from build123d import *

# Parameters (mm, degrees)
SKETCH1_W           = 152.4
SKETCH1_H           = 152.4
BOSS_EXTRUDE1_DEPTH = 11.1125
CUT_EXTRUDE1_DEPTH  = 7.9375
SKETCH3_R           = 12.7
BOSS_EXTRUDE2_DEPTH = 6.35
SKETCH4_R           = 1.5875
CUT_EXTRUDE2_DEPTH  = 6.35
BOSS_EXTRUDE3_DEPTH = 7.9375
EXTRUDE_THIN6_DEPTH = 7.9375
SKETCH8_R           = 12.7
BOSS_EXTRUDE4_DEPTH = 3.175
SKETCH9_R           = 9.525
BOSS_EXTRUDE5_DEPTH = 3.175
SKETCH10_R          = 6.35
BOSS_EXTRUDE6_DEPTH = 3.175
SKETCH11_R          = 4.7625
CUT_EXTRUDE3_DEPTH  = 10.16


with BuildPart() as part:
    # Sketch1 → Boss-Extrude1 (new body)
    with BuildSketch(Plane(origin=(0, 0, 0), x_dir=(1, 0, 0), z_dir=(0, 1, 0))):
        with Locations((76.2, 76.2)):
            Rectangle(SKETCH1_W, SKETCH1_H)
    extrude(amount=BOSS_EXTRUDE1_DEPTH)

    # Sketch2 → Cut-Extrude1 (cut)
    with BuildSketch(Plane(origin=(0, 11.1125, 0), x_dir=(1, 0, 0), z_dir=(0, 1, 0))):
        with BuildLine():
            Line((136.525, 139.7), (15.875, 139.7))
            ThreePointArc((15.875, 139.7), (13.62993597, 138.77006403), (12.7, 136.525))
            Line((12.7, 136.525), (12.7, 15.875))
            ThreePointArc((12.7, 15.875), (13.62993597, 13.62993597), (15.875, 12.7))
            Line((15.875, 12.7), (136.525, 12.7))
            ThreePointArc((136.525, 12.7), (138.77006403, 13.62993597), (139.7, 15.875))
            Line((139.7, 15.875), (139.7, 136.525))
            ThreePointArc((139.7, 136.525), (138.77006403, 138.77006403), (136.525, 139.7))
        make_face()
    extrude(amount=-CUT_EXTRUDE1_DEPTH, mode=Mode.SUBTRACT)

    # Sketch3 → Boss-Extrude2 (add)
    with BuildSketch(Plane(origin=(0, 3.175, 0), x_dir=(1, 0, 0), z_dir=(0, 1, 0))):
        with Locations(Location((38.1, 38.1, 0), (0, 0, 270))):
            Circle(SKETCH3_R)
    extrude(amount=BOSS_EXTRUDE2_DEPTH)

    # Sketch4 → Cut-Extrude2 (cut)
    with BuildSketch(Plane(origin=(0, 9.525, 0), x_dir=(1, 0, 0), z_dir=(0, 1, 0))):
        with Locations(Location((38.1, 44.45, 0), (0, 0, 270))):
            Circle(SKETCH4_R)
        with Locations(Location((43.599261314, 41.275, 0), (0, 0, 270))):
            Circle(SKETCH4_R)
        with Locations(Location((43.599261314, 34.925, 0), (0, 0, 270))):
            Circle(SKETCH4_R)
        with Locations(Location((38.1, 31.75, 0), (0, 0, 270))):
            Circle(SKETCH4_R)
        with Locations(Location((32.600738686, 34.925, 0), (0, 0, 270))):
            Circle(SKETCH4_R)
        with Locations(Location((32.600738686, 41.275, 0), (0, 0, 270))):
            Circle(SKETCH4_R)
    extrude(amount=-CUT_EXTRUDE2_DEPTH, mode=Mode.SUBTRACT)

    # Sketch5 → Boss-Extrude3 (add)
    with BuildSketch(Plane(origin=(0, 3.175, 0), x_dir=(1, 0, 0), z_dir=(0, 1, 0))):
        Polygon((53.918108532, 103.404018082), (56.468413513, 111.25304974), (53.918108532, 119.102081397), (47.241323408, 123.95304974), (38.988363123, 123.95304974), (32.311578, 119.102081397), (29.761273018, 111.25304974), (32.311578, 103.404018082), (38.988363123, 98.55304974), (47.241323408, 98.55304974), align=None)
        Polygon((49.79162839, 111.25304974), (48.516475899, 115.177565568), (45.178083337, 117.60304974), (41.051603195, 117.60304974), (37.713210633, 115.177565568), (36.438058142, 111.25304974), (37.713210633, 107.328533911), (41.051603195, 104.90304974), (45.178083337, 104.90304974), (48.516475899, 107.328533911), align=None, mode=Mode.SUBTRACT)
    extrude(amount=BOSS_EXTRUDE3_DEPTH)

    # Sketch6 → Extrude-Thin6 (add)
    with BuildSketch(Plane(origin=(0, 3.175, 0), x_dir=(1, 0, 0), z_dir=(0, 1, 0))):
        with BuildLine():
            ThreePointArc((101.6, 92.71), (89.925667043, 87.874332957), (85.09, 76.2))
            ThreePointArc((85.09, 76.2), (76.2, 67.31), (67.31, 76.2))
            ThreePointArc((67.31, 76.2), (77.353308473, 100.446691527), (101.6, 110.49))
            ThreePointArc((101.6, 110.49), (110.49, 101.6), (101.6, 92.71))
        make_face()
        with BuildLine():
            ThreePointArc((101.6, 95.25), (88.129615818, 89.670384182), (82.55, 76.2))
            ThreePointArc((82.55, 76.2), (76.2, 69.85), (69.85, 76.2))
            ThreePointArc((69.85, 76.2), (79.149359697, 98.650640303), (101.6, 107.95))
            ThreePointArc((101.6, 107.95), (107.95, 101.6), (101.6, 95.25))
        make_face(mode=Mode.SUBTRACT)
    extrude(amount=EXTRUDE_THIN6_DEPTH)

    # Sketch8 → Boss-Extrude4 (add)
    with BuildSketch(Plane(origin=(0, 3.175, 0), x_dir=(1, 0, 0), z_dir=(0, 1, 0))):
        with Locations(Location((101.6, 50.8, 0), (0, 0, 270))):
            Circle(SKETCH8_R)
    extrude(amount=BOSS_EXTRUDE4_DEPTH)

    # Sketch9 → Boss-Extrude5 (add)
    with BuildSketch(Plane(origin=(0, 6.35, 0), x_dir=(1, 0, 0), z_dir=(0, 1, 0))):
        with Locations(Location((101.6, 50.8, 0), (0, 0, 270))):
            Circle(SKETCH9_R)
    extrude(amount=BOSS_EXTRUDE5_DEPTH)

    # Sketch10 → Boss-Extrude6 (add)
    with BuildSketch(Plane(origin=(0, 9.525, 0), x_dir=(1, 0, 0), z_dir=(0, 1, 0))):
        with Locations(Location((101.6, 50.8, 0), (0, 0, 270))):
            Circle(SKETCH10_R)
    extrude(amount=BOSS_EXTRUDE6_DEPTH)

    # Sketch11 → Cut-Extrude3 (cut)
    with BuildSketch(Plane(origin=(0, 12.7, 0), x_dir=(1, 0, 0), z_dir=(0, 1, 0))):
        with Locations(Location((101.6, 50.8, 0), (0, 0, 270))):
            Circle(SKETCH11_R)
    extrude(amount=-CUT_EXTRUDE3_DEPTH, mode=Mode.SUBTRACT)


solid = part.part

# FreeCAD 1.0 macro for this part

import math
import FreeCAD as App
import Part
import Sketcher
Q = App.Units.Quantity


def add_polygon(sketch, points):
    """Adds a closed chain of lines whose ends are joined by coincident constraints."""
    first, n = sketch.GeometryCount, len(points)
    for a, b in zip(points, points[1:] + points[:1]):
        sketch.addGeometry(Part.LineSegment(App.Vector(*a, 0), App.Vector(*b, 0)), False)
    for i in range(n):
        sketch.addConstraint(Sketcher.Constraint("Coincident", first + i, 2, first + (i + 1) % n, 1))

doc = App.newDocument("Part")
body = doc.addObject("PartDesign::Body", "Body")

# Sketch on XZ plane
sketch1 = body.newObject("Sketcher::SketchObject", "Sketch")
sketch1.AttachmentSupport = (doc.getObject("XZ_Plane"), [""])
sketch1.MapMode = "FlatFace"
add_polygon(sketch1, [(0, -152), (0, 0), (152, 0), (152, -152)])  # lines 0-3
sketch1.addConstraint([
    Sketcher.Constraint("Vertical", 0),
    Sketcher.Constraint("Horizontal", 1),
    Sketcher.Constraint("Vertical", 2),
    Sketcher.Constraint("Horizontal", 3),
    Sketcher.Constraint("Coincident", 0, 2, -1, 1),
    Sketcher.Constraint("Equal", 3, 0),
    Sketcher.Constraint("DistanceX", 1, 1, 1, 2, Q("6 in")),
])
pad1 = body.newObject("PartDesign::Pad", "Pad")
pad1.Profile = sketch1
pad1.Length = Q("0.4375 in")
pad1.Reversed = True

# Sketch on XZ plane
sketch2 = body.newObject("Sketcher::SketchObject", "Sketch001")
sketch2.AttachmentSupport = (doc.getObject("XZ_Plane"), [""])
sketch2.MapMode = "FlatFace"
sketch2.AttachmentOffset = App.Placement(App.Vector(0, 0, -0.4375 * 25.4), App.Rotation())
sketch2.addGeometry([
    Part.LineSegment(App.Vector(136.5, -139.7, 0), App.Vector(15.9, -139.7, 0)),  # 0
    Part.ArcOfCircle(Part.Circle(App.Vector(15.9, -136.5, 0), App.Vector(0, 0, 1), 3.2), math.radians(-180), math.radians(-90)),  # 1
    Part.LineSegment(App.Vector(12.7, -136.5, 0), App.Vector(12.7, -15.9, 0)),  # 2
    Part.ArcOfCircle(Part.Circle(App.Vector(15.9, -15.9, 0), App.Vector(0, 0, 1), 3.2), math.radians(90), math.radians(180)),  # 3
    Part.LineSegment(App.Vector(15.9, -12.7, 0), App.Vector(136.5, -12.7, 0)),  # 4
    Part.ArcOfCircle(Part.Circle(App.Vector(136.5, -15.9, 0), App.Vector(0, 0, 1), 3.2), math.radians(0), math.radians(90)),  # 5
    Part.LineSegment(App.Vector(139.7, -15.9, 0), App.Vector(139.7, -136.5, 0)),  # 6
    Part.ArcOfCircle(Part.Circle(App.Vector(136.5, -136.5, 0), App.Vector(0, 0, 1), 3.2), math.radians(-90), math.radians(0)),  # 7
], False)
sketch2.addConstraint([
    Sketcher.Constraint("Tangent", 0, 2, 1, 2),
    Sketcher.Constraint("Tangent", 1, 1, 2, 1),
    Sketcher.Constraint("Tangent", 2, 2, 3, 2),
    Sketcher.Constraint("Tangent", 3, 1, 4, 1),
    Sketcher.Constraint("Tangent", 4, 2, 5, 2),
    Sketcher.Constraint("Tangent", 5, 1, 6, 1),
    Sketcher.Constraint("Tangent", 6, 2, 7, 2),
    Sketcher.Constraint("Tangent", 7, 1, 0, 1),
    Sketcher.Constraint("Horizontal", 0),
    Sketcher.Constraint("Vertical", 2),
    Sketcher.Constraint("Horizontal", 4),
    Sketcher.Constraint("Vertical", 6),
    Sketcher.Constraint("Equal", 1, 3),
    Sketcher.Constraint("Equal", 3, 5),
    Sketcher.Constraint("Equal", 5, 7),
    Sketcher.Constraint("Equal", 4, 2),
    Sketcher.Constraint("Radius", 1, Q("0.125 in")),
    Sketcher.Constraint("DistanceX", 0, 2, 0, 1, Q("4.75 in")),
    Sketcher.Constraint("DistanceY", 0, 2, -1, 1, Q("5.5 in")),
    Sketcher.Constraint("DistanceX", -1, 1, 1, 1, Q("0.5 in")),
])
pocket1 = body.newObject("PartDesign::Pocket", "Pocket")
pocket1.Profile = sketch2
pocket1.Length = Q("0.3125 in")
pocket1.Reversed = True

# Sketch on XZ plane
sketch3 = body.newObject("Sketcher::SketchObject", "Sketch002")
sketch3.AttachmentSupport = (doc.getObject("XZ_Plane"), [""])
sketch3.MapMode = "FlatFace"
sketch3.AttachmentOffset = App.Placement(App.Vector(0, 0, -0.125 * 25.4), App.Rotation())
sketch3.addGeometry(Part.Circle(App.Vector(38, -38, 0), App.Vector(0, 0, 1), 13), False)
sketch3.addConstraint([
    Sketcher.Constraint("Diameter", 0, Q("1 in")),
    Sketcher.Constraint("DistanceX", -1, 1, 0, 3, Q("1.5 in")),
    Sketcher.Constraint("DistanceY", 0, 3, -1, 1, Q("1.5 in")),
])
pad2 = body.newObject("PartDesign::Pad", "Pad001")
pad2.Profile = sketch3
pad2.Length = Q("0.25 in")
pad2.Reversed = True

# Sketch on XZ plane
sketch4 = body.newObject("Sketcher::SketchObject", "Sketch003")
sketch4.AttachmentSupport = (doc.getObject("XZ_Plane"), [""])
sketch4.MapMode = "FlatFace"
sketch4.AttachmentOffset = App.Placement(App.Vector(0, 0, -0.375 * 25.4), App.Rotation())
sketch4.addGeometry([
    Part.Circle(App.Vector(38.1, -44.5, 0), App.Vector(0, 0, 1), 1.6),  # 0
    Part.Circle(App.Vector(43.6, -41.3, 0), App.Vector(0, 0, 1), 1.6),  # 1
    Part.Circle(App.Vector(43.6, -34.9, 0), App.Vector(0, 0, 1), 1.6),  # 2
    Part.Circle(App.Vector(38.1, -31.8, 0), App.Vector(0, 0, 1), 1.6),  # 3
    Part.Circle(App.Vector(32.6, -34.9, 0), App.Vector(0, 0, 1), 1.6),  # 4
    Part.Circle(App.Vector(32.6, -41.3, 0), App.Vector(0, 0, 1), 1.6),  # 5
], False)
sketch4.addConstraint([
    Sketcher.Constraint("Equal", 0, 1),
    Sketcher.Constraint("Equal", 1, 2),
    Sketcher.Constraint("Equal", 2, 3),
    Sketcher.Constraint("Equal", 3, 4),
    Sketcher.Constraint("Equal", 4, 5),
    Sketcher.Constraint("Horizontal", 2, 3, 4, 3),
    Sketcher.Constraint("Horizontal", 1, 3, 5, 3),
    Sketcher.Constraint("Vertical", 1, 3, 2, 3),
    Sketcher.Constraint("Vertical", 0, 3, 3, 3),
    Sketcher.Constraint("Vertical", 4, 3, 5, 3),
    Sketcher.Constraint("Diameter", 0, Q("0.125 in")),
    Sketcher.Constraint("DistanceX", -1, 1, 0, 3, Q("1.5 in")),
    Sketcher.Constraint("DistanceY", 0, 3, 3, 3, Q("0.5 in")),
    Sketcher.Constraint("DistanceY", 0, 3, -1, 1, Q("1.75 in")),
    Sketcher.Constraint("DistanceY", 1, 3, 2, 3, Q("0.25 in")),
    Sketcher.Constraint("DistanceY", 1, 3, -1, 1, Q("1.625 in")),
    Sketcher.Constraint("DistanceX", -1, 1, 1, 3, Q("43.599261 mm")),
    Sketcher.Constraint("DistanceX", -1, 1, 4, 3, Q("32.600739 mm")),
])
pocket2 = body.newObject("PartDesign::Pocket", "Pocket001")
pocket2.Profile = sketch4
pocket2.Length = Q("0.25 in")
pocket2.Reversed = True

# Sketch on XZ plane
sketch5 = body.newObject("Sketcher::SketchObject", "Sketch004")
sketch5.AttachmentSupport = (doc.getObject("XZ_Plane"), [""])
sketch5.MapMode = "FlatFace"
sketch5.AttachmentOffset = App.Placement(App.Vector(0, 0, -0.125 * 25.4), App.Rotation())
add_polygon(sketch5, [(53.9, -103.4), (56.5, -111.3), (53.9, -119.1), (47.2, -124), (39, -124), (32.3, -119.1), (29.8, -111.3), (32.3, -103.4), (39, -98.6), (47.2, -98.6)])  # lines 0-9
add_polygon(sketch5, [(48.5, -115.2), (49.8, -111.3), (48.5, -107.3), (45.2, -104.9), (41.1, -104.9), (37.7, -107.3), (36.4, -111.3), (37.7, -115.2), (41.1, -117.6), (45.2, -117.6)])  # lines 10-19
sketch5.addConstraint([
    Sketcher.Constraint("Horizontal", 3),
    Sketcher.Constraint("Horizontal", 8),
    Sketcher.Constraint("Horizontal", 13),
    Sketcher.Constraint("Horizontal", 18),
    Sketcher.Constraint("Parallel", 0, 5),
    Sketcher.Constraint("Parallel", 1, 6),
    Sketcher.Constraint("Parallel", 2, 7),
    Sketcher.Constraint("Parallel", 4, 9),
    Sketcher.Constraint("Parallel", 6, 10),
    Sketcher.Constraint("Parallel", 5, 11),
    Sketcher.Constraint("Parallel", 9, 12),
    Sketcher.Constraint("Parallel", 7, 14),
    Sketcher.Constraint("Parallel", 10, 15),
    Sketcher.Constraint("Parallel", 11, 16),
    Sketcher.Constraint("Parallel", 12, 17),
    Sketcher.Constraint("Parallel", 14, 19),
    Sketcher.Constraint("Horizontal", 1, 2, 4, 2),
    Sketcher.Constraint("Horizontal", 0, 2, 5, 2),
    Sketcher.Constraint("Horizontal", 6, 2, 9, 2),
    Sketcher.Constraint("Horizontal", 5, 2, 10, 2),
    Sketcher.Constraint("Horizontal", 11, 2, 14, 2),
    Sketcher.Constraint("Horizontal", 10, 2, 15, 2),
    Sketcher.Constraint("Horizontal", 16, 2, 19, 2),
    Sketcher.Constraint("Vertical", 4, 2, 6, 2),
    Sketcher.Constraint("Vertical", 3, 2, 7, 2),
    Sketcher.Constraint("Vertical", 2, 2, 8, 2),
    Sketcher.Constraint("Vertical", 1, 2, 9, 2),
    Sketcher.Constraint("Vertical", 14, 2, 16, 2),
    Sketcher.Constraint("Vertical", 13, 2, 17, 2),
    Sketcher.Constraint("Equal", 1, 2),
    Sketcher.Constraint("Equal", 11, 12),
    Sketcher.Constraint("Angle", 0, Q("-72 deg")),
    Sketcher.Constraint("Angle", 2, Q("-144 deg")),
    Sketcher.Constraint("DistanceY", 3, 2, 7, 2, Q("1 in")),
    Sketcher.Constraint("DistanceY", 12, 2, 8, 2, Q("0.25 in")),
    Sketcher.Constraint("DistanceX", 3, 2, 3, 1, Q("8.25296 mm")),
    Sketcher.Constraint("DistanceX", 13, 2, 13, 1, Q("4.12648 mm")),
    Sketcher.Constraint("DistanceY", 0, 2, -1, 1, Q("111.25305 mm")),
    Sketcher.Constraint("DistanceX", -1, 1, 1, 2, Q("53.918109 mm")),
    Sketcher.Constraint("DistanceX", -1, 1, 10, 2, Q("49.791628 mm")),
])
pad3 = body.newObject("PartDesign::Pad", "Pad002")
pad3.Profile = sketch5
pad3.Length = Q("0.3125 in")
pad3.Reversed = True

# Sketch on XZ plane
sketch6 = body.newObject("Sketcher::SketchObject", "Sketch005")
sketch6.AttachmentSupport = (doc.getObject("XZ_Plane"), [""])
sketch6.MapMode = "FlatFace"
sketch6.AttachmentOffset = App.Placement(App.Vector(0, 0, -0.125 * 25.4), App.Rotation())
sketch6.addGeometry([
    Part.ArcOfCircle(Part.Circle(App.Vector(102, -76, 0), App.Vector(0, 0, 1), 17), math.radians(-180), math.radians(-90)),  # 0
    Part.ArcOfCircle(Part.Circle(App.Vector(102, -102, 0), App.Vector(0, 0, 1), 9), math.radians(-90), math.radians(90)),  # 1
    Part.ArcOfCircle(Part.Circle(App.Vector(102, -76, 0), App.Vector(0, 0, 1), 34), math.radians(180), math.radians(270)),  # 2
    Part.ArcOfCircle(Part.Circle(App.Vector(76, -76, 0), App.Vector(0, 0, 1), 9), math.radians(0), math.radians(180)),  # 3
    Part.ArcOfCircle(Part.Circle(App.Vector(102, -76, 0), App.Vector(0, 0, 1), 19), math.radians(180), math.radians(270)),  # 4
    Part.ArcOfCircle(Part.Circle(App.Vector(76, -76, 0), App.Vector(0, 0, 1), 6), math.radians(0), math.radians(180)),  # 5
    Part.ArcOfCircle(Part.Circle(App.Vector(102, -76, 0), App.Vector(0, 0, 1), 32), math.radians(180), math.radians(270)),  # 6
    Part.ArcOfCircle(Part.Circle(App.Vector(102, -102, 0), App.Vector(0, 0, 1), 6), math.radians(-90), math.radians(90)),  # 7
], False)
sketch6.addConstraint([
    Sketcher.Constraint("Tangent", 0, 2, 1, 2),
    Sketcher.Constraint("Tangent", 1, 1, 2, 2),
    Sketcher.Constraint("Tangent", 2, 1, 3, 2),
    Sketcher.Constraint("Tangent", 3, 1, 0, 1),
    Sketcher.Constraint("Tangent", 4, 1, 5, 1),
    Sketcher.Constraint("Tangent", 5, 2, 6, 1),
    Sketcher.Constraint("Tangent", 6, 2, 7, 1),
    Sketcher.Constraint("Tangent", 7, 2, 4, 2),
    Sketcher.Constraint("Coincident", 2, 3, 0, 3),
    Sketcher.Constraint("Coincident", 4, 3, 0, 3),
    Sketcher.Constraint("Coincident", 5, 3, 3, 3),
    Sketcher.Constraint("Coincident", 6, 3, 0, 3),
    Sketcher.Constraint("Horizontal", 2, 3, 3, 3),
    Sketcher.Constraint("Vertical", 0, 3, 1, 3),
    Sketcher.Constraint("Vertical", 6, 3, 7, 3),
    Sketcher.Constraint("Radius", 0, Q("0.65 in")),
    Sketcher.Constraint("Radius", 1, Q("0.35 in")),
    Sketcher.Constraint("Radius", 4, Q("0.75 in")),
    Sketcher.Constraint("DistanceX", -1, 1, 0, 3, Q("4 in")),
    Sketcher.Constraint("DistanceY", 0, 3, -1, 1, Q("3 in")),
])
pad4 = body.newObject("PartDesign::Pad", "Pad003")
pad4.Profile = sketch6
pad4.Length = Q("0.3125 in")
pad4.Reversed = True

# Sketch on XZ plane
sketch7 = body.newObject("Sketcher::SketchObject", "Sketch006")
sketch7.AttachmentSupport = (doc.getObject("XZ_Plane"), [""])
sketch7.MapMode = "FlatFace"
sketch7.AttachmentOffset = App.Placement(App.Vector(0, 0, -0.125 * 25.4), App.Rotation())
sketch7.addGeometry(Part.Circle(App.Vector(102, -51, 0), App.Vector(0, 0, 1), 13), False)
sketch7.addConstraint([
    Sketcher.Constraint("Diameter", 0, Q("1 in")),
    Sketcher.Constraint("DistanceX", -1, 1, 0, 3, Q("4 in")),
    Sketcher.Constraint("DistanceY", 0, 3, -1, 1, Q("2 in")),
])
pad5 = body.newObject("PartDesign::Pad", "Pad004")
pad5.Profile = sketch7
pad5.Length = Q("0.125 in")
pad5.Reversed = True

# Sketch on XZ plane
sketch8 = body.newObject("Sketcher::SketchObject", "Sketch007")
sketch8.AttachmentSupport = (doc.getObject("XZ_Plane"), [""])
sketch8.MapMode = "FlatFace"
sketch8.AttachmentOffset = App.Placement(App.Vector(0, 0, -0.25 * 25.4), App.Rotation())
sketch8.addGeometry(Part.Circle(App.Vector(102, -51, 0), App.Vector(0, 0, 1), 10), False)
sketch8.addConstraint([
    Sketcher.Constraint("Diameter", 0, Q("0.75 in")),
    Sketcher.Constraint("DistanceX", -1, 1, 0, 3, Q("4 in")),
    Sketcher.Constraint("DistanceY", 0, 3, -1, 1, Q("2 in")),
])
pad6 = body.newObject("PartDesign::Pad", "Pad005")
pad6.Profile = sketch8
pad6.Length = Q("0.125 in")
pad6.Reversed = True

# Sketch on XZ plane
sketch9 = body.newObject("Sketcher::SketchObject", "Sketch008")
sketch9.AttachmentSupport = (doc.getObject("XZ_Plane"), [""])
sketch9.MapMode = "FlatFace"
sketch9.AttachmentOffset = App.Placement(App.Vector(0, 0, -0.375 * 25.4), App.Rotation())
sketch9.addGeometry(Part.Circle(App.Vector(102, -51, 0), App.Vector(0, 0, 1), 6), False)
sketch9.addConstraint([
    Sketcher.Constraint("Diameter", 0, Q("0.5 in")),
    Sketcher.Constraint("DistanceX", -1, 1, 0, 3, Q("4 in")),
    Sketcher.Constraint("DistanceY", 0, 3, -1, 1, Q("2 in")),
])
pad7 = body.newObject("PartDesign::Pad", "Pad006")
pad7.Profile = sketch9
pad7.Length = Q("0.125 in")
pad7.Reversed = True

# Sketch on XZ plane
sketch10 = body.newObject("Sketcher::SketchObject", "Sketch009")
sketch10.AttachmentSupport = (doc.getObject("XZ_Plane"), [""])
sketch10.MapMode = "FlatFace"
sketch10.AttachmentOffset = App.Placement(App.Vector(0, 0, -0.5 * 25.4), App.Rotation())
sketch10.addGeometry(Part.Circle(App.Vector(101.6, -50.8, 0), App.Vector(0, 0, 1), 4.8), False)
sketch10.addConstraint([
    Sketcher.Constraint("Diameter", 0, Q("0.375 in")),
    Sketcher.Constraint("DistanceX", -1, 1, 0, 3, Q("4 in")),
    Sketcher.Constraint("DistanceY", 0, 3, -1, 1, Q("2 in")),
])
pocket3 = body.newObject("PartDesign::Pocket", "Pocket002")
pocket3.Profile = sketch10
pocket3.Length = Q("0.4 in")
pocket3.Reversed = True

doc.recompute()
